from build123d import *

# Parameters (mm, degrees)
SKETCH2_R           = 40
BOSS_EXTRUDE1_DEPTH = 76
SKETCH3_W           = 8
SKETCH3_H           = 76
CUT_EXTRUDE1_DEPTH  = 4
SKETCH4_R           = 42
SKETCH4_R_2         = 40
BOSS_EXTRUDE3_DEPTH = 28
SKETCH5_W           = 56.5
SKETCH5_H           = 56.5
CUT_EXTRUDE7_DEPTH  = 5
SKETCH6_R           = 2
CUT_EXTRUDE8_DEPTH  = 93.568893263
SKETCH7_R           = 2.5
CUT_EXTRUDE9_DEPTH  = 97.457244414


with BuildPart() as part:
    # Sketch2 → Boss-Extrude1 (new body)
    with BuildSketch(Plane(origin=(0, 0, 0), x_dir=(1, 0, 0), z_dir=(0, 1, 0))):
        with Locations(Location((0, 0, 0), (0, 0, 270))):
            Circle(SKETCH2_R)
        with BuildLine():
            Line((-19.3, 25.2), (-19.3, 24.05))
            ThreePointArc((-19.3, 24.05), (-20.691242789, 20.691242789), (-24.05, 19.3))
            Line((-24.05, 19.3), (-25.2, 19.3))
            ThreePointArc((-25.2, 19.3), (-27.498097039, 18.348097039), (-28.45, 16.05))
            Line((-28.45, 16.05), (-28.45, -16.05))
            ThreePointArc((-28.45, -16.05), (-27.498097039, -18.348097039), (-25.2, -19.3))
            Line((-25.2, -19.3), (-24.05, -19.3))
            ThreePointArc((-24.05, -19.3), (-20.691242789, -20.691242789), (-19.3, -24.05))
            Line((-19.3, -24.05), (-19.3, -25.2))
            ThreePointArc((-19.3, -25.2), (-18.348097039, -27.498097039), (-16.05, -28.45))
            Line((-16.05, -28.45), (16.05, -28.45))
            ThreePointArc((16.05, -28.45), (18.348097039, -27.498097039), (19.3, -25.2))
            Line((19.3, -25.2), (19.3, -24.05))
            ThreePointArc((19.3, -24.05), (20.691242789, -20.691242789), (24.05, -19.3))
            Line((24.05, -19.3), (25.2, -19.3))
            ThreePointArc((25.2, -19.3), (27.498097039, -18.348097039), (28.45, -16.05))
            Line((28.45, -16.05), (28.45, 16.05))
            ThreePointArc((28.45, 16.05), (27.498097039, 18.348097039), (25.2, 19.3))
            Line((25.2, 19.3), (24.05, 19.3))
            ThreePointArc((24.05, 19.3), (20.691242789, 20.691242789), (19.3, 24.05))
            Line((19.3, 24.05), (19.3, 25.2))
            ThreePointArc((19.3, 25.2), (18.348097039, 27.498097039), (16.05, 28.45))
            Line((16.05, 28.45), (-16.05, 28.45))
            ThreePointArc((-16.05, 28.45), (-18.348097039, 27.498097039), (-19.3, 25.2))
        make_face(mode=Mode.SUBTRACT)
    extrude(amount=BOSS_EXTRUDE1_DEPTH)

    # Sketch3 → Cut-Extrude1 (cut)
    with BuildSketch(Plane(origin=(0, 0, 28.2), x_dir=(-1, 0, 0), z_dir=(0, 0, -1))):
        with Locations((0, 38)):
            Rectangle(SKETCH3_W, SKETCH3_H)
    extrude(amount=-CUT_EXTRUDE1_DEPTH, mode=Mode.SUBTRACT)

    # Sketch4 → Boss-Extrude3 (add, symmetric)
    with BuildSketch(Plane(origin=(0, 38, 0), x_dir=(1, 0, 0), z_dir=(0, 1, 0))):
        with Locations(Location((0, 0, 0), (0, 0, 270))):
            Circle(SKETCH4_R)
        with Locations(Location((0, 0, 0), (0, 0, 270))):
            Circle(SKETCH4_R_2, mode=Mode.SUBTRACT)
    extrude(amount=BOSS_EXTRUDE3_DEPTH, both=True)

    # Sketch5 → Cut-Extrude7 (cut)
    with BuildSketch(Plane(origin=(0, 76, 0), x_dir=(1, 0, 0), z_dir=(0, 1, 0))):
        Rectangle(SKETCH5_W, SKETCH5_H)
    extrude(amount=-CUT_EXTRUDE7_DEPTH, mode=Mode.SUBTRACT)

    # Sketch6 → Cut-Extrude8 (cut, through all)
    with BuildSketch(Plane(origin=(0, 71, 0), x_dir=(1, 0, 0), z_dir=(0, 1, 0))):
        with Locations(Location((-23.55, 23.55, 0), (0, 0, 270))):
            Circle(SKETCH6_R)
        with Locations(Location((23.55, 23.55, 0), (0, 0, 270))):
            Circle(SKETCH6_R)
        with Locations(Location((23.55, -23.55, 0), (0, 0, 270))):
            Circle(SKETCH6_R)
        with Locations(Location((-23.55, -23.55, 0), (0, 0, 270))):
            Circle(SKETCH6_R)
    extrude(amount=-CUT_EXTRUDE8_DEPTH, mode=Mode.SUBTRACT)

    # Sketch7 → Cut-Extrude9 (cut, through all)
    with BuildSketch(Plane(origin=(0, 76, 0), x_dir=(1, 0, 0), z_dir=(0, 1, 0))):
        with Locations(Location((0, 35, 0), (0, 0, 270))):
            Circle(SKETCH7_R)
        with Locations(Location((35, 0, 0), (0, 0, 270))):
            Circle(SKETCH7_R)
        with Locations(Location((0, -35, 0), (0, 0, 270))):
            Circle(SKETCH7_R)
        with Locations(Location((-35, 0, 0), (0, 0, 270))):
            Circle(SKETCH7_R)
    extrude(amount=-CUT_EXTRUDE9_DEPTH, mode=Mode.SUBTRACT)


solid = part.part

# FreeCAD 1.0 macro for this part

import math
import FreeCAD as App
import Part
import Sketcher

V = App.Vector
Q = App.Units.Quantity

doc = App.newDocument("Part")
body = doc.addObject("PartDesign::Body", "Body")

# Sketch on XZ plane
sketch1 = body.newObject("Sketcher::SketchObject", "Sketch")
sketch1.AttachmentSupport = (doc.getObject("XZ_Plane"), [""])
sketch1.MapMode = "FlatFace"
sketch1.addGeometry([
    Part.Circle(V(0, 0, 0), V(0, 0, 1), 40),  # 0
    Part.LineSegment(V(-19.3, -24.1, 0), V(-19.3, -25.2, 0)),  # 1
    Part.ArcOfCircle(Part.Circle(V(-16.1, -25.2, 0), V(0, 0, 1), 3.2), math.radians(180), math.radians(270)),  # 2
    Part.LineSegment(V(-16.1, -28.4, 0), V(16.1, -28.4, 0)),  # 3
    Part.ArcOfCircle(Part.Circle(V(16.1, -25.2, 0), V(0, 0, 1), 3.2), math.radians(-90), math.radians(0)),  # 4
    Part.LineSegment(V(19.3, -25.2, 0), V(19.3, -24.1, 0)),  # 5
    Part.ArcOfCircle(Part.Circle(V(24, -24, 0), V(0, 0, 1), 4.7), math.radians(90), math.radians(180)),  # 6
    Part.LineSegment(V(24.1, -19.3, 0), V(25.2, -19.3, 0)),  # 7
    Part.ArcOfCircle(Part.Circle(V(25.2, -16.1, 0), V(0, 0, 1), 3.2), math.radians(-90), math.radians(0)),  # 8
    Part.LineSegment(V(28.4, -16.1, 0), V(28.4, 16.1, 0)),  # 9
    Part.ArcOfCircle(Part.Circle(V(25.2, 16.1, 0), V(0, 0, 1), 3.2), math.radians(0), math.radians(90)),  # 10
    Part.LineSegment(V(25.2, 19.3, 0), V(24.1, 19.3, 0)),  # 11
    Part.ArcOfCircle(Part.Circle(V(24, 24, 0), V(0, 0, 1), 4.7), math.radians(180), math.radians(270)),  # 12
    Part.LineSegment(V(19.3, 24.1, 0), V(19.3, 25.2, 0)),  # 13
    Part.ArcOfCircle(Part.Circle(V(16.1, 25.2, 0), V(0, 0, 1), 3.2), math.radians(0), math.radians(90)),  # 14
    Part.LineSegment(V(16.1, 28.4, 0), V(-16.1, 28.4, 0)),  # 15
    Part.ArcOfCircle(Part.Circle(V(-16.1, 25.2, 0), V(0, 0, 1), 3.2), math.radians(90), math.radians(180)),  # 16
    Part.LineSegment(V(-19.3, 25.2, 0), V(-19.3, 24.1, 0)),  # 17
    Part.ArcOfCircle(Part.Circle(V(-24, 24, 0), V(0, 0, 1), 4.7), math.radians(-90), math.radians(0)),  # 18
    Part.LineSegment(V(-24.1, 19.3, 0), V(-25.2, 19.3, 0)),  # 19
    Part.ArcOfCircle(Part.Circle(V(-25.2, 16.1, 0), V(0, 0, 1), 3.2), math.radians(90), math.radians(180)),  # 20
    Part.LineSegment(V(-28.4, 16.1, 0), V(-28.4, -16.1, 0)),  # 21
    Part.ArcOfCircle(Part.Circle(V(-25.2, -16.1, 0), V(0, 0, 1), 3.2), math.radians(180), math.radians(270)),  # 22
    Part.LineSegment(V(-25.2, -19.3, 0), V(-24.1, -19.3, 0)),  # 23
    Part.ArcOfCircle(Part.Circle(V(-24, -24, 0), V(0, 0, 1), 4.7), math.radians(0), math.radians(90)),  # 24
], False)
sketch1.addConstraint([
    Sketcher.Constraint("Tangent", 1, 2, 2, 1),
    Sketcher.Constraint("Tangent", 2, 2, 3, 1),
    Sketcher.Constraint("Tangent", 3, 2, 4, 1),
    Sketcher.Constraint("Tangent", 4, 2, 5, 1),
    Sketcher.Constraint("Tangent", 5, 2, 6, 2),
    Sketcher.Constraint("Tangent", 6, 1, 7, 1),
    Sketcher.Constraint("Tangent", 7, 2, 8, 1),
    Sketcher.Constraint("Tangent", 8, 2, 9, 1),
    Sketcher.Constraint("Tangent", 9, 2, 10, 1),
    Sketcher.Constraint("Tangent", 10, 2, 11, 1),
    Sketcher.Constraint("Tangent", 11, 2, 12, 2),
    Sketcher.Constraint("Tangent", 12, 1, 13, 1),
    Sketcher.Constraint("Tangent", 13, 2, 14, 1),
    Sketcher.Constraint("Tangent", 14, 2, 15, 1),
    Sketcher.Constraint("Tangent", 15, 2, 16, 1),
    Sketcher.Constraint("Tangent", 16, 2, 17, 1),
    Sketcher.Constraint("Tangent", 17, 2, 18, 2),
    Sketcher.Constraint("Tangent", 18, 1, 19, 1),
    Sketcher.Constraint("Tangent", 19, 2, 20, 1),
    Sketcher.Constraint("Tangent", 20, 2, 21, 1),
    Sketcher.Constraint("Tangent", 21, 2, 22, 1),
    Sketcher.Constraint("Tangent", 22, 2, 23, 1),
    Sketcher.Constraint("Tangent", 23, 2, 24, 2),
    Sketcher.Constraint("Tangent", 24, 1, 1, 1),
    Sketcher.Constraint("Vertical", 1),
    Sketcher.Constraint("Horizontal", 3),
    Sketcher.Constraint("Vertical", 5),
    Sketcher.Constraint("Horizontal", 7),
    Sketcher.Constraint("Vertical", 9),
    Sketcher.Constraint("Horizontal", 11),
    Sketcher.Constraint("Vertical", 13),
    Sketcher.Constraint("Horizontal", 15),
    Sketcher.Constraint("Vertical", 17),
    Sketcher.Constraint("Horizontal", 19),
    Sketcher.Constraint("Vertical", 21),
    Sketcher.Constraint("Horizontal", 23),
    Sketcher.Constraint("Coincident", 0, 3, -1, 1),
    Sketcher.Constraint("Equal", 2, 4),
    Sketcher.Constraint("Equal", 4, 8),
    Sketcher.Constraint("Equal", 8, 10),
    Sketcher.Constraint("Equal", 6, 12),
    Sketcher.Constraint("Equal", 10, 14),
    Sketcher.Constraint("Equal", 14, 16),
    Sketcher.Constraint("Equal", 12, 18),
    Sketcher.Constraint("Equal", 16, 20),
    Sketcher.Constraint("Equal", 20, 22),
    Sketcher.Constraint("Equal", 18, 24),
    Sketcher.Constraint("Symmetric", 2, 3, 14, 3, -1, 1),
    Sketcher.Constraint("Symmetric", 6, 3, 18, 3, -1, 1),
    Sketcher.Constraint("Symmetric", 10, 3, 22, 3, -1, 1),
    Sketcher.Constraint("Symmetric", 12, 3, 18, 3, -2),
    Sketcher.Constraint("Equal", 23, 1),
    Sketcher.Constraint("Equal", 15, 9),
    Sketcher.Constraint("Diameter", 0, Q("80 mm")),
    Sketcher.Constraint("Radius", 2, Q("3.25 mm")),
    Sketcher.Constraint("Radius", 6, Q("4.75 mm")),
    Sketcher.Constraint("DistanceX", 3, 1, 3, 2, Q("32.1 mm")),
    Sketcher.Constraint("DistanceX", 7, 1, 7, 2, Q("1.15 mm")),
])
pad1 = body.newObject("PartDesign::Pad", "Pad")
pad1.Profile = sketch1
pad1.Length = 76
pad1.Reversed = True

# Sketch on XY plane
sketch2 = body.newObject("Sketcher::SketchObject", "Sketch001")
sketch2.AttachmentSupport = (doc.getObject("XY_Plane"), [""])
sketch2.MapMode = "FlatFace"
sketch2.AttachmentOffset = App.Placement(V(0, 0, 28.2), App.Rotation())
sketch2.addGeometry([
    Part.LineSegment(V(4, 76, 0), V(4, 0, 0)),
    Part.LineSegment(V(4, 0, 0), V(-4, 0, 0)),
    Part.LineSegment(V(-4, 0, 0), V(-4, 76, 0)),
    Part.LineSegment(V(-4, 76, 0), V(4, 76, 0)),
], False)
sketch2.addConstraint([
    Sketcher.Constraint("Coincident", 0, 2, 1, 1),
    Sketcher.Constraint("Coincident", 1, 2, 2, 1),
    Sketcher.Constraint("Coincident", 2, 2, 3, 1),
    Sketcher.Constraint("Coincident", 3, 2, 0, 1),
    Sketcher.Constraint("Vertical", 0),
    Sketcher.Constraint("Horizontal", 1),
    Sketcher.Constraint("Vertical", 2),
    Sketcher.Constraint("Horizontal", 3),
    Sketcher.Constraint("Symmetric", 0, 2, 1, 2, -1, 1),
    Sketcher.Constraint("DistanceX", 1, 2, 1, 1, Q("8 mm")),
    Sketcher.Constraint("DistanceY", 0, 2, 0, 1, Q("76 mm")),
])
pocket1 = body.newObject("PartDesign::Pocket", "Pocket")
pocket1.Profile = sketch2
pocket1.Length = 4
pocket1.Reversed = True

# Sketch on XZ plane
sketch3 = body.newObject("Sketcher::SketchObject", "Sketch002")
sketch3.AttachmentSupport = (doc.getObject("XZ_Plane"), [""])
sketch3.MapMode = "FlatFace"
sketch3.AttachmentOffset = App.Placement(V(0, 0, -38), App.Rotation())
sketch3.addGeometry([
    Part.Circle(V(0, 0, 0), V(0, 0, 1), 42),
    Part.Circle(V(0, 0, 0), V(0, 0, 1), 40),
], False)
sketch3.addConstraint([
    Sketcher.Constraint("Coincident", 0, 3, -1, 1),
    Sketcher.Constraint("Coincident", 1, 3, -1, 1),
    Sketcher.Constraint("Diameter", 0, Q("84 mm")),
    Sketcher.Constraint("Diameter", 1, Q("80 mm")),
])
pad2 = body.newObject("PartDesign::Pad", "Pad001")
pad2.Profile = sketch3
pad2.Length = 56
pad2.Midplane = True

# Sketch on XZ plane
sketch4 = body.newObject("Sketcher::SketchObject", "Sketch003")
sketch4.AttachmentSupport = (doc.getObject("XZ_Plane"), [""])
sketch4.MapMode = "FlatFace"
sketch4.AttachmentOffset = App.Placement(V(0, 0, -76), App.Rotation())
sketch4.addGeometry([
    Part.LineSegment(V(-28, -28, 0), V(-28, 28, 0)),
    Part.LineSegment(V(-28, 28, 0), V(28, 28, 0)),
    Part.LineSegment(V(28, 28, 0), V(28, -28, 0)),
    Part.LineSegment(V(28, -28, 0), V(-28, -28, 0)),
], False)
sketch4.addConstraint([
    Sketcher.Constraint("Coincident", 0, 2, 1, 1),
    Sketcher.Constraint("Coincident", 1, 2, 2, 1),
    Sketcher.Constraint("Coincident", 2, 2, 3, 1),
    Sketcher.Constraint("Coincident", 3, 2, 0, 1),
    Sketcher.Constraint("Vertical", 0),
    Sketcher.Constraint("Horizontal", 1),
    Sketcher.Constraint("Vertical", 2),
    Sketcher.Constraint("Horizontal", 3),
    Sketcher.Constraint("Symmetric", 0, 2, 2, 2, -1, 1),
    Sketcher.Constraint("Equal", 3, 0),
    Sketcher.Constraint("DistanceX", 1, 1, 1, 2, Q("56.5 mm")),
])
pocket2 = body.newObject("PartDesign::Pocket", "Pocket001")
pocket2.Profile = sketch4
pocket2.Length = 5
pocket2.Reversed = True

# Sketch on XZ plane
sketch5 = body.newObject("Sketcher::SketchObject", "Sketch004")
sketch5.AttachmentSupport = (doc.getObject("XZ_Plane"), [""])
sketch5.MapMode = "FlatFace"
sketch5.AttachmentOffset = App.Placement(V(0, 0, -71), App.Rotation())
sketch5.addGeometry([
    Part.Circle(V(-23.6, -23.6, 0), V(0, 0, 1), 2),
    Part.Circle(V(23.6, -23.6, 0), V(0, 0, 1), 2),
    Part.Circle(V(23.6, 23.6, 0), V(0, 0, 1), 2),
    Part.Circle(V(-23.6, 23.6, 0), V(0, 0, 1), 2),
], False)
sketch5.addConstraint([
    Sketcher.Constraint("Equal", 0, 1),
    Sketcher.Constraint("Equal", 1, 2),
    Sketcher.Constraint("Equal", 2, 3),
    Sketcher.Constraint("Symmetric", 0, 3, 2, 3, -1, 1),
    Sketcher.Constraint("Symmetric", 1, 3, 3, 3, -1, 1),
    Sketcher.Constraint("Symmetric", 0, 3, 1, 3, -2),
    Sketcher.Constraint("Diameter", 0, Q("4 mm")),
    Sketcher.Constraint("DistanceX", 0, 3, 1, 3, Q("47.1 mm")),
    Sketcher.Constraint("DistanceY", 1, 3, 2, 3, Q("47.1 mm")),
])
pocket3 = body.newObject("PartDesign::Pocket", "Pocket002")
pocket3.Profile = sketch5
pocket3.Type = "ThroughAll"
pocket3.Reversed = True

# Sketch on XZ plane
sketch6 = body.newObject("Sketcher::SketchObject", "Sketch005")
sketch6.AttachmentSupport = (doc.getObject("XZ_Plane"), [""])
sketch6.MapMode = "FlatFace"
sketch6.AttachmentOffset = App.Placement(V(0, 0, -76), App.Rotation())
sketch6.addGeometry([
    Part.Circle(V(0, -35, 0), V(0, 0, 1), 2.5),
    Part.Circle(V(35, 0, 0), V(0, 0, 1), 2.5),
    Part.Circle(V(0, 35, 0), V(0, 0, 1), 2.5),
    Part.Circle(V(-35, 0, 0), V(0, 0, 1), 2.5),
], False)
sketch6.addConstraint([
    Sketcher.Constraint("Equal", 0, 1),
    Sketcher.Constraint("Equal", 1, 2),
    Sketcher.Constraint("Equal", 2, 3),
    Sketcher.Constraint("Symmetric", 0, 3, 2, 3, -1, 1),
    Sketcher.Constraint("Symmetric", 1, 3, 3, 3, -1, 1),
    Sketcher.Constraint("PointOnObject", 0, 3, -2),
    Sketcher.Constraint("PointOnObject", 1, 3, -1),
    Sketcher.Constraint("Diameter", 0, Q("5 mm")),
    Sketcher.Constraint("DistanceY", 0, 3, -1, 1, Q("35 mm")),
    Sketcher.Constraint("DistanceX", -1, 1, 1, 3, Q("35 mm")),
])
pocket4 = body.newObject("PartDesign::Pocket", "Pocket003")
pocket4.Profile = sketch6
pocket4.Type = "ThroughAll"
pocket4.Reversed = True

doc.recompute()
